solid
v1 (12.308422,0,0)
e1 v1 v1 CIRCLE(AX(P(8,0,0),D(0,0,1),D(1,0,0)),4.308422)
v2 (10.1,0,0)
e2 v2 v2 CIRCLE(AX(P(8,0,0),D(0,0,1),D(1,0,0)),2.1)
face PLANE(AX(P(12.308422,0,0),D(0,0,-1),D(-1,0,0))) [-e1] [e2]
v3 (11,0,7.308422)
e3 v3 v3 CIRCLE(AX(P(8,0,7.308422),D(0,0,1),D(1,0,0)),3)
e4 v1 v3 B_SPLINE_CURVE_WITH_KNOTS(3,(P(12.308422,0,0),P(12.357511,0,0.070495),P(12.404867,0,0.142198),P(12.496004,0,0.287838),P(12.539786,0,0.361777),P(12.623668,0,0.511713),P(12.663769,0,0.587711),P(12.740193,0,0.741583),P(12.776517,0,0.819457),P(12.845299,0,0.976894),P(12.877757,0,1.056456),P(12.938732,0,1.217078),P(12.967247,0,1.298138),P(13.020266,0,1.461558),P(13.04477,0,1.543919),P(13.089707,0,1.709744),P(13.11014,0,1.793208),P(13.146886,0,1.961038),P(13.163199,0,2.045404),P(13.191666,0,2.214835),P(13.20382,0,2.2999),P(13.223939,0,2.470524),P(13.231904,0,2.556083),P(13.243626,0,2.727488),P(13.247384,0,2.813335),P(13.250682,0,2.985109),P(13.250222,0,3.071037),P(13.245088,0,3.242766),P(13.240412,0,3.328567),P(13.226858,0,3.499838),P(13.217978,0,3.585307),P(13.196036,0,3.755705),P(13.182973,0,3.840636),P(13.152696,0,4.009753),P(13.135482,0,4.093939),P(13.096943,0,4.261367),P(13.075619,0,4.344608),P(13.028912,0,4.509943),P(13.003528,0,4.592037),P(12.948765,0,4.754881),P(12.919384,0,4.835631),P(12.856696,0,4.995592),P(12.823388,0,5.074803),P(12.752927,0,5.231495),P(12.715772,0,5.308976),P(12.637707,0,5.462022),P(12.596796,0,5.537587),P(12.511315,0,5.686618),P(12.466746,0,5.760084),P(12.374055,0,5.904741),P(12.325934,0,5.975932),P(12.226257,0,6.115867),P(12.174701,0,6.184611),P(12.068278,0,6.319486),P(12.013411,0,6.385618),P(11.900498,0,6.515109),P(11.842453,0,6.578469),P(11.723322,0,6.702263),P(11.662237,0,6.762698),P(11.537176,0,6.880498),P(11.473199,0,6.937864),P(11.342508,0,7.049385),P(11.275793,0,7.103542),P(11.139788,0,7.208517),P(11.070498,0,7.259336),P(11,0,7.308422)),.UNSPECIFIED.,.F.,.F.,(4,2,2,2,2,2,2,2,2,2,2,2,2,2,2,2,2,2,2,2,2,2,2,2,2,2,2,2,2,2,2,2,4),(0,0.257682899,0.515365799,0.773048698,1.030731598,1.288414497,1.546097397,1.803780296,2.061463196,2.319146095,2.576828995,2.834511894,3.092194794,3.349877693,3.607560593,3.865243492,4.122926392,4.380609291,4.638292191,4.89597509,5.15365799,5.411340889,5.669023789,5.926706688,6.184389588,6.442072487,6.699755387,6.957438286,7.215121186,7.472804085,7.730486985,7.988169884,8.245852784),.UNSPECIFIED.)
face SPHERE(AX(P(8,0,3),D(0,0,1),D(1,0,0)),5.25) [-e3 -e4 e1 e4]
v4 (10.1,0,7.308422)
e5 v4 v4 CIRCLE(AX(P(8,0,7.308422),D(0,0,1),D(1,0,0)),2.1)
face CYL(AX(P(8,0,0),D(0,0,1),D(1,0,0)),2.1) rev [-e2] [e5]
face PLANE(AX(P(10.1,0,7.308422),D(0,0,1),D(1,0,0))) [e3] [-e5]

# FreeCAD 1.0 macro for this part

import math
import FreeCAD as App
import Part
import Sketcher
from FreeCAD import Vector

doc = App.newDocument("Part")
body = doc.addObject("PartDesign::Body", "Body")

sketch1 = body.newObject("Sketcher::SketchObject", "Sketch")
sketch1.AttachmentSupport = (doc.getObject("XZ_Plane"), [""])
sketch1.MapMode = "FlatFace"
sketch1.addGeometry(Part.LineSegment(Vector(12.3, 0, 0), Vector(10.1, 0, 0)), False)
sketch1.addGeometry(Part.LineSegment(Vector(10.1, 0, 0), Vector(10.1, 7.3, 0)), False)
sketch1.addGeometry(Part.LineSegment(Vector(10.1, 7.3, 0), Vector(11, 7.3, 0)), False)
sketch1.addGeometry(Part.ArcOfCircle(Part.Circle(Vector(8, 3, 0), Vector(0, 0, 1), 5.3), math.radians(-35), math.radians(55)), False)
sketch1.addGeometry(Part.LineSegment(Vector(8, 0, 0), Vector(8, 7.3, 0)), True)
sketch1.addConstraint(Sketcher.Constraint("Coincident", 0, 2, 1, 1))
sketch1.addConstraint(Sketcher.Constraint("Coincident", 1, 2, 2, 1))
sketch1.addConstraint(Sketcher.Constraint("Coincident", 2, 2, 3, 2))
sketch1.addConstraint(Sketcher.Constraint("Coincident", 3, 1, 0, 1))
sketch1.addConstraint(Sketcher.Constraint("Horizontal", 0))
sketch1.addConstraint(Sketcher.Constraint("Vertical", 1))
sketch1.addConstraint(Sketcher.Constraint("Horizontal", 2))
sketch1.addConstraint(Sketcher.Constraint("Vertical", 4))
sketch1.addConstraint(Sketcher.Constraint("PointOnObject", 0, 2, -1))
sketch1.addConstraint(Sketcher.Constraint("PointOnObject", 4, 1, -1))
sketch1.addConstraint(Sketcher.Constraint("Horizontal", 2, 2, 4, 2))
sketch1.addConstraint(Sketcher.Constraint("Vertical", 3, 3, 4, 1))
sketch1.addConstraint(Sketcher.Constraint("Radius", 3, 5.25))
sketch1.addConstraint(Sketcher.Constraint("DistanceX", 2, 1, 2, 2, 0.9))
sketch1.addConstraint(Sketcher.Constraint("DistanceX", -1, 1, 3, 3, 8.0))
sketch1.addConstraint(Sketcher.Constraint("DistanceY", -1, 1, 3, 3, 3.0))
sketch1.addConstraint(Sketcher.Constraint("DistanceX", -1, 1, 2, 2, 11.0))
revolution = body.newObject("PartDesign::Revolution", "Revolution")
revolution.Profile = sketch1
revolution.ReferenceAxis = (sketch1, ["Axis0"])
revolution.Angle = 360

doc.recompute()
